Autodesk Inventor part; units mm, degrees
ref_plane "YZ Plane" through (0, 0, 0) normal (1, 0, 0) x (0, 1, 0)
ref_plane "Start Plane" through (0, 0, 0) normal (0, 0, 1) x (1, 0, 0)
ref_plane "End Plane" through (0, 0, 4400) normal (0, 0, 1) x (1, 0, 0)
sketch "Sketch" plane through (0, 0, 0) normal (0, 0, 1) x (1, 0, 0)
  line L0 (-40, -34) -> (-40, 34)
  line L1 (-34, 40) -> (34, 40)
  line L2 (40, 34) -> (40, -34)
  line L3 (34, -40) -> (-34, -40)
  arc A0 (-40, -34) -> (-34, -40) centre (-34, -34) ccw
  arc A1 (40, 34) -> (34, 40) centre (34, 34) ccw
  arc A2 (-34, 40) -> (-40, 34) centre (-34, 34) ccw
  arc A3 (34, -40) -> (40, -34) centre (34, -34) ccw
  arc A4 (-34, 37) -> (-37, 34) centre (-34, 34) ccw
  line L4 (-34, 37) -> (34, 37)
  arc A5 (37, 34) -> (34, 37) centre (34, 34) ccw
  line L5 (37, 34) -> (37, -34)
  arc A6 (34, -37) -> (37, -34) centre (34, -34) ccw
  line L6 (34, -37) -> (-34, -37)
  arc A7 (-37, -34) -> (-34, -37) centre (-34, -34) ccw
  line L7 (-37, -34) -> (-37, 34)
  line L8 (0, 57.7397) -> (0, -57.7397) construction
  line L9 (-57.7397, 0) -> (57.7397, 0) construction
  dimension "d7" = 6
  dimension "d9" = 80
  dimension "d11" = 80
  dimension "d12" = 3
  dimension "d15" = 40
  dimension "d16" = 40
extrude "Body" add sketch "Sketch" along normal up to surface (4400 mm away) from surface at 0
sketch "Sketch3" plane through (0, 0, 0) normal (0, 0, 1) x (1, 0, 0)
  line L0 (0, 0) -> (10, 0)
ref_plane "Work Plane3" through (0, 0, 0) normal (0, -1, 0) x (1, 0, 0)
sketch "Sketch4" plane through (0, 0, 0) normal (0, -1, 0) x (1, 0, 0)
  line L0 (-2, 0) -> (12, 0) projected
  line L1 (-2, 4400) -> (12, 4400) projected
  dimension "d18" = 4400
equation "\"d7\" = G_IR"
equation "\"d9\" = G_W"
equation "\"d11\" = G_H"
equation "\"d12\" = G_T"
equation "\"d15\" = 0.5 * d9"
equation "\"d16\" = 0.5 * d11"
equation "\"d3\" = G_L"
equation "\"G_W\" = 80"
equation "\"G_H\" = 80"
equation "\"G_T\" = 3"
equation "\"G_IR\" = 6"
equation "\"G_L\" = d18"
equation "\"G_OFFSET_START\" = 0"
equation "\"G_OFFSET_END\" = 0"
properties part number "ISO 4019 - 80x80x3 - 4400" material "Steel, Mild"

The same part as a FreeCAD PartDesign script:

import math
import FreeCAD as App
import Part
import Sketcher
from FreeCAD import Vector

doc = App.newDocument("Part")
body = doc.addObject("PartDesign::Body", "Body")

# Sketch on XY plane
sketch1 = body.newObject("Sketcher::SketchObject", "Sketch")
sketch1.AttachmentSupport = (doc.getObject("XY_Plane"), [""])
sketch1.MapMode = "FlatFace"
sketch1.addGeometry([
    Part.LineSegment(Vector(-40, 34, 0), Vector(-40, -34, 0)),  # 0
    Part.ArcOfCircle(Part.Circle(Vector(-34, -34, 0), Vector(0, 0, 1), 6), math.radians(180), math.radians(270)),  # 1
    Part.LineSegment(Vector(-34, -40, 0), Vector(34, -40, 0)),  # 2
    Part.ArcOfCircle(Part.Circle(Vector(34, -34, 0), Vector(0, 0, 1), 6), math.radians(-90), math.radians(0)),  # 3
    Part.LineSegment(Vector(40, -34, 0), Vector(40, 34, 0)),  # 4
    Part.ArcOfCircle(Part.Circle(Vector(34, 34, 0), Vector(0, 0, 1), 6), math.radians(0), math.radians(90)),  # 5
    Part.LineSegment(Vector(34, 40, 0), Vector(-34, 40, 0)),  # 6
    Part.ArcOfCircle(Part.Circle(Vector(-34, 34, 0), Vector(0, 0, 1), 6), math.radians(90), math.radians(180)),  # 7
    Part.ArcOfCircle(Part.Circle(Vector(-34, 34, 0), Vector(0, 0, 1), 3), math.radians(90), math.radians(180)),  # 8
    Part.LineSegment(Vector(-34, 37, 0), Vector(34, 37, 0)),  # 9
    Part.ArcOfCircle(Part.Circle(Vector(34, 34, 0), Vector(0, 0, 1), 3), math.radians(0), math.radians(90)),  # 10
    Part.LineSegment(Vector(37, 34, 0), Vector(37, -34, 0)),  # 11
    Part.ArcOfCircle(Part.Circle(Vector(34, -34, 0), Vector(0, 0, 1), 3), math.radians(-90), math.radians(0)),  # 12
    Part.LineSegment(Vector(34, -37, 0), Vector(-34, -37, 0)),  # 13
    Part.ArcOfCircle(Part.Circle(Vector(-34, -34, 0), Vector(0, 0, 1), 3), math.radians(180), math.radians(270)),  # 14
    Part.LineSegment(Vector(-37, -34, 0), Vector(-37, 34, 0)),  # 15
], False)
sketch1.addConstraint([
    Sketcher.Constraint("Tangent", 0, 2, 1, 1),
    Sketcher.Constraint("Tangent", 1, 2, 2, 1),
    Sketcher.Constraint("Tangent", 2, 2, 3, 1),
    Sketcher.Constraint("Tangent", 3, 2, 4, 1),
    Sketcher.Constraint("Tangent", 4, 2, 5, 1),
    Sketcher.Constraint("Tangent", 5, 2, 6, 1),
    Sketcher.Constraint("Tangent", 6, 2, 7, 1),
    Sketcher.Constraint("Tangent", 7, 2, 0, 1),
    Sketcher.Constraint("Tangent", 8, 1, 9, 1),
    Sketcher.Constraint("Tangent", 9, 2, 10, 2),
    Sketcher.Constraint("Tangent", 10, 1, 11, 1),
    Sketcher.Constraint("Tangent", 11, 2, 12, 2),
    Sketcher.Constraint("Tangent", 12, 1, 13, 1),
    Sketcher.Constraint("Tangent", 13, 2, 14, 2),
    Sketcher.Constraint("Tangent", 14, 1, 15, 1),
    Sketcher.Constraint("Tangent", 15, 2, 8, 2),
    Sketcher.Constraint("Vertical", 0),
    Sketcher.Constraint("Horizontal", 2),
    Sketcher.Constraint("Vertical", 4),
    Sketcher.Constraint("Horizontal", 6),
    Sketcher.Constraint("Horizontal", 9),
    Sketcher.Constraint("Vertical", 11),
    Sketcher.Constraint("Horizontal", 13),
    Sketcher.Constraint("Vertical", 15),
    Sketcher.Constraint("Coincident", 8, 3, 7, 3),
    Sketcher.Constraint("Coincident", 10, 3, 5, 3),
    Sketcher.Constraint("Coincident", 12, 3, 3, 3),
    Sketcher.Constraint("Equal", 1, 3),
    Sketcher.Constraint("Equal", 3, 5),
    Sketcher.Constraint("Equal", 5, 7),
    Sketcher.Constraint("Equal", 12, 14),
    Sketcher.Constraint("Symmetric", 1, 3, 5, 3, -1, 1),
    Sketcher.Constraint("Equal", 13, 0),
    Sketcher.Constraint("Radius", 1, 6.0),
    Sketcher.Constraint("Radius", 8, 3.0),
    Sketcher.Constraint("DistanceX", 0, 2, -1, 1, 40.0),
])
pad1 = body.newObject("PartDesign::Pad", "Pad")
pad1.Profile = sketch1
pad1.Length = 4400

doc.recompute()
